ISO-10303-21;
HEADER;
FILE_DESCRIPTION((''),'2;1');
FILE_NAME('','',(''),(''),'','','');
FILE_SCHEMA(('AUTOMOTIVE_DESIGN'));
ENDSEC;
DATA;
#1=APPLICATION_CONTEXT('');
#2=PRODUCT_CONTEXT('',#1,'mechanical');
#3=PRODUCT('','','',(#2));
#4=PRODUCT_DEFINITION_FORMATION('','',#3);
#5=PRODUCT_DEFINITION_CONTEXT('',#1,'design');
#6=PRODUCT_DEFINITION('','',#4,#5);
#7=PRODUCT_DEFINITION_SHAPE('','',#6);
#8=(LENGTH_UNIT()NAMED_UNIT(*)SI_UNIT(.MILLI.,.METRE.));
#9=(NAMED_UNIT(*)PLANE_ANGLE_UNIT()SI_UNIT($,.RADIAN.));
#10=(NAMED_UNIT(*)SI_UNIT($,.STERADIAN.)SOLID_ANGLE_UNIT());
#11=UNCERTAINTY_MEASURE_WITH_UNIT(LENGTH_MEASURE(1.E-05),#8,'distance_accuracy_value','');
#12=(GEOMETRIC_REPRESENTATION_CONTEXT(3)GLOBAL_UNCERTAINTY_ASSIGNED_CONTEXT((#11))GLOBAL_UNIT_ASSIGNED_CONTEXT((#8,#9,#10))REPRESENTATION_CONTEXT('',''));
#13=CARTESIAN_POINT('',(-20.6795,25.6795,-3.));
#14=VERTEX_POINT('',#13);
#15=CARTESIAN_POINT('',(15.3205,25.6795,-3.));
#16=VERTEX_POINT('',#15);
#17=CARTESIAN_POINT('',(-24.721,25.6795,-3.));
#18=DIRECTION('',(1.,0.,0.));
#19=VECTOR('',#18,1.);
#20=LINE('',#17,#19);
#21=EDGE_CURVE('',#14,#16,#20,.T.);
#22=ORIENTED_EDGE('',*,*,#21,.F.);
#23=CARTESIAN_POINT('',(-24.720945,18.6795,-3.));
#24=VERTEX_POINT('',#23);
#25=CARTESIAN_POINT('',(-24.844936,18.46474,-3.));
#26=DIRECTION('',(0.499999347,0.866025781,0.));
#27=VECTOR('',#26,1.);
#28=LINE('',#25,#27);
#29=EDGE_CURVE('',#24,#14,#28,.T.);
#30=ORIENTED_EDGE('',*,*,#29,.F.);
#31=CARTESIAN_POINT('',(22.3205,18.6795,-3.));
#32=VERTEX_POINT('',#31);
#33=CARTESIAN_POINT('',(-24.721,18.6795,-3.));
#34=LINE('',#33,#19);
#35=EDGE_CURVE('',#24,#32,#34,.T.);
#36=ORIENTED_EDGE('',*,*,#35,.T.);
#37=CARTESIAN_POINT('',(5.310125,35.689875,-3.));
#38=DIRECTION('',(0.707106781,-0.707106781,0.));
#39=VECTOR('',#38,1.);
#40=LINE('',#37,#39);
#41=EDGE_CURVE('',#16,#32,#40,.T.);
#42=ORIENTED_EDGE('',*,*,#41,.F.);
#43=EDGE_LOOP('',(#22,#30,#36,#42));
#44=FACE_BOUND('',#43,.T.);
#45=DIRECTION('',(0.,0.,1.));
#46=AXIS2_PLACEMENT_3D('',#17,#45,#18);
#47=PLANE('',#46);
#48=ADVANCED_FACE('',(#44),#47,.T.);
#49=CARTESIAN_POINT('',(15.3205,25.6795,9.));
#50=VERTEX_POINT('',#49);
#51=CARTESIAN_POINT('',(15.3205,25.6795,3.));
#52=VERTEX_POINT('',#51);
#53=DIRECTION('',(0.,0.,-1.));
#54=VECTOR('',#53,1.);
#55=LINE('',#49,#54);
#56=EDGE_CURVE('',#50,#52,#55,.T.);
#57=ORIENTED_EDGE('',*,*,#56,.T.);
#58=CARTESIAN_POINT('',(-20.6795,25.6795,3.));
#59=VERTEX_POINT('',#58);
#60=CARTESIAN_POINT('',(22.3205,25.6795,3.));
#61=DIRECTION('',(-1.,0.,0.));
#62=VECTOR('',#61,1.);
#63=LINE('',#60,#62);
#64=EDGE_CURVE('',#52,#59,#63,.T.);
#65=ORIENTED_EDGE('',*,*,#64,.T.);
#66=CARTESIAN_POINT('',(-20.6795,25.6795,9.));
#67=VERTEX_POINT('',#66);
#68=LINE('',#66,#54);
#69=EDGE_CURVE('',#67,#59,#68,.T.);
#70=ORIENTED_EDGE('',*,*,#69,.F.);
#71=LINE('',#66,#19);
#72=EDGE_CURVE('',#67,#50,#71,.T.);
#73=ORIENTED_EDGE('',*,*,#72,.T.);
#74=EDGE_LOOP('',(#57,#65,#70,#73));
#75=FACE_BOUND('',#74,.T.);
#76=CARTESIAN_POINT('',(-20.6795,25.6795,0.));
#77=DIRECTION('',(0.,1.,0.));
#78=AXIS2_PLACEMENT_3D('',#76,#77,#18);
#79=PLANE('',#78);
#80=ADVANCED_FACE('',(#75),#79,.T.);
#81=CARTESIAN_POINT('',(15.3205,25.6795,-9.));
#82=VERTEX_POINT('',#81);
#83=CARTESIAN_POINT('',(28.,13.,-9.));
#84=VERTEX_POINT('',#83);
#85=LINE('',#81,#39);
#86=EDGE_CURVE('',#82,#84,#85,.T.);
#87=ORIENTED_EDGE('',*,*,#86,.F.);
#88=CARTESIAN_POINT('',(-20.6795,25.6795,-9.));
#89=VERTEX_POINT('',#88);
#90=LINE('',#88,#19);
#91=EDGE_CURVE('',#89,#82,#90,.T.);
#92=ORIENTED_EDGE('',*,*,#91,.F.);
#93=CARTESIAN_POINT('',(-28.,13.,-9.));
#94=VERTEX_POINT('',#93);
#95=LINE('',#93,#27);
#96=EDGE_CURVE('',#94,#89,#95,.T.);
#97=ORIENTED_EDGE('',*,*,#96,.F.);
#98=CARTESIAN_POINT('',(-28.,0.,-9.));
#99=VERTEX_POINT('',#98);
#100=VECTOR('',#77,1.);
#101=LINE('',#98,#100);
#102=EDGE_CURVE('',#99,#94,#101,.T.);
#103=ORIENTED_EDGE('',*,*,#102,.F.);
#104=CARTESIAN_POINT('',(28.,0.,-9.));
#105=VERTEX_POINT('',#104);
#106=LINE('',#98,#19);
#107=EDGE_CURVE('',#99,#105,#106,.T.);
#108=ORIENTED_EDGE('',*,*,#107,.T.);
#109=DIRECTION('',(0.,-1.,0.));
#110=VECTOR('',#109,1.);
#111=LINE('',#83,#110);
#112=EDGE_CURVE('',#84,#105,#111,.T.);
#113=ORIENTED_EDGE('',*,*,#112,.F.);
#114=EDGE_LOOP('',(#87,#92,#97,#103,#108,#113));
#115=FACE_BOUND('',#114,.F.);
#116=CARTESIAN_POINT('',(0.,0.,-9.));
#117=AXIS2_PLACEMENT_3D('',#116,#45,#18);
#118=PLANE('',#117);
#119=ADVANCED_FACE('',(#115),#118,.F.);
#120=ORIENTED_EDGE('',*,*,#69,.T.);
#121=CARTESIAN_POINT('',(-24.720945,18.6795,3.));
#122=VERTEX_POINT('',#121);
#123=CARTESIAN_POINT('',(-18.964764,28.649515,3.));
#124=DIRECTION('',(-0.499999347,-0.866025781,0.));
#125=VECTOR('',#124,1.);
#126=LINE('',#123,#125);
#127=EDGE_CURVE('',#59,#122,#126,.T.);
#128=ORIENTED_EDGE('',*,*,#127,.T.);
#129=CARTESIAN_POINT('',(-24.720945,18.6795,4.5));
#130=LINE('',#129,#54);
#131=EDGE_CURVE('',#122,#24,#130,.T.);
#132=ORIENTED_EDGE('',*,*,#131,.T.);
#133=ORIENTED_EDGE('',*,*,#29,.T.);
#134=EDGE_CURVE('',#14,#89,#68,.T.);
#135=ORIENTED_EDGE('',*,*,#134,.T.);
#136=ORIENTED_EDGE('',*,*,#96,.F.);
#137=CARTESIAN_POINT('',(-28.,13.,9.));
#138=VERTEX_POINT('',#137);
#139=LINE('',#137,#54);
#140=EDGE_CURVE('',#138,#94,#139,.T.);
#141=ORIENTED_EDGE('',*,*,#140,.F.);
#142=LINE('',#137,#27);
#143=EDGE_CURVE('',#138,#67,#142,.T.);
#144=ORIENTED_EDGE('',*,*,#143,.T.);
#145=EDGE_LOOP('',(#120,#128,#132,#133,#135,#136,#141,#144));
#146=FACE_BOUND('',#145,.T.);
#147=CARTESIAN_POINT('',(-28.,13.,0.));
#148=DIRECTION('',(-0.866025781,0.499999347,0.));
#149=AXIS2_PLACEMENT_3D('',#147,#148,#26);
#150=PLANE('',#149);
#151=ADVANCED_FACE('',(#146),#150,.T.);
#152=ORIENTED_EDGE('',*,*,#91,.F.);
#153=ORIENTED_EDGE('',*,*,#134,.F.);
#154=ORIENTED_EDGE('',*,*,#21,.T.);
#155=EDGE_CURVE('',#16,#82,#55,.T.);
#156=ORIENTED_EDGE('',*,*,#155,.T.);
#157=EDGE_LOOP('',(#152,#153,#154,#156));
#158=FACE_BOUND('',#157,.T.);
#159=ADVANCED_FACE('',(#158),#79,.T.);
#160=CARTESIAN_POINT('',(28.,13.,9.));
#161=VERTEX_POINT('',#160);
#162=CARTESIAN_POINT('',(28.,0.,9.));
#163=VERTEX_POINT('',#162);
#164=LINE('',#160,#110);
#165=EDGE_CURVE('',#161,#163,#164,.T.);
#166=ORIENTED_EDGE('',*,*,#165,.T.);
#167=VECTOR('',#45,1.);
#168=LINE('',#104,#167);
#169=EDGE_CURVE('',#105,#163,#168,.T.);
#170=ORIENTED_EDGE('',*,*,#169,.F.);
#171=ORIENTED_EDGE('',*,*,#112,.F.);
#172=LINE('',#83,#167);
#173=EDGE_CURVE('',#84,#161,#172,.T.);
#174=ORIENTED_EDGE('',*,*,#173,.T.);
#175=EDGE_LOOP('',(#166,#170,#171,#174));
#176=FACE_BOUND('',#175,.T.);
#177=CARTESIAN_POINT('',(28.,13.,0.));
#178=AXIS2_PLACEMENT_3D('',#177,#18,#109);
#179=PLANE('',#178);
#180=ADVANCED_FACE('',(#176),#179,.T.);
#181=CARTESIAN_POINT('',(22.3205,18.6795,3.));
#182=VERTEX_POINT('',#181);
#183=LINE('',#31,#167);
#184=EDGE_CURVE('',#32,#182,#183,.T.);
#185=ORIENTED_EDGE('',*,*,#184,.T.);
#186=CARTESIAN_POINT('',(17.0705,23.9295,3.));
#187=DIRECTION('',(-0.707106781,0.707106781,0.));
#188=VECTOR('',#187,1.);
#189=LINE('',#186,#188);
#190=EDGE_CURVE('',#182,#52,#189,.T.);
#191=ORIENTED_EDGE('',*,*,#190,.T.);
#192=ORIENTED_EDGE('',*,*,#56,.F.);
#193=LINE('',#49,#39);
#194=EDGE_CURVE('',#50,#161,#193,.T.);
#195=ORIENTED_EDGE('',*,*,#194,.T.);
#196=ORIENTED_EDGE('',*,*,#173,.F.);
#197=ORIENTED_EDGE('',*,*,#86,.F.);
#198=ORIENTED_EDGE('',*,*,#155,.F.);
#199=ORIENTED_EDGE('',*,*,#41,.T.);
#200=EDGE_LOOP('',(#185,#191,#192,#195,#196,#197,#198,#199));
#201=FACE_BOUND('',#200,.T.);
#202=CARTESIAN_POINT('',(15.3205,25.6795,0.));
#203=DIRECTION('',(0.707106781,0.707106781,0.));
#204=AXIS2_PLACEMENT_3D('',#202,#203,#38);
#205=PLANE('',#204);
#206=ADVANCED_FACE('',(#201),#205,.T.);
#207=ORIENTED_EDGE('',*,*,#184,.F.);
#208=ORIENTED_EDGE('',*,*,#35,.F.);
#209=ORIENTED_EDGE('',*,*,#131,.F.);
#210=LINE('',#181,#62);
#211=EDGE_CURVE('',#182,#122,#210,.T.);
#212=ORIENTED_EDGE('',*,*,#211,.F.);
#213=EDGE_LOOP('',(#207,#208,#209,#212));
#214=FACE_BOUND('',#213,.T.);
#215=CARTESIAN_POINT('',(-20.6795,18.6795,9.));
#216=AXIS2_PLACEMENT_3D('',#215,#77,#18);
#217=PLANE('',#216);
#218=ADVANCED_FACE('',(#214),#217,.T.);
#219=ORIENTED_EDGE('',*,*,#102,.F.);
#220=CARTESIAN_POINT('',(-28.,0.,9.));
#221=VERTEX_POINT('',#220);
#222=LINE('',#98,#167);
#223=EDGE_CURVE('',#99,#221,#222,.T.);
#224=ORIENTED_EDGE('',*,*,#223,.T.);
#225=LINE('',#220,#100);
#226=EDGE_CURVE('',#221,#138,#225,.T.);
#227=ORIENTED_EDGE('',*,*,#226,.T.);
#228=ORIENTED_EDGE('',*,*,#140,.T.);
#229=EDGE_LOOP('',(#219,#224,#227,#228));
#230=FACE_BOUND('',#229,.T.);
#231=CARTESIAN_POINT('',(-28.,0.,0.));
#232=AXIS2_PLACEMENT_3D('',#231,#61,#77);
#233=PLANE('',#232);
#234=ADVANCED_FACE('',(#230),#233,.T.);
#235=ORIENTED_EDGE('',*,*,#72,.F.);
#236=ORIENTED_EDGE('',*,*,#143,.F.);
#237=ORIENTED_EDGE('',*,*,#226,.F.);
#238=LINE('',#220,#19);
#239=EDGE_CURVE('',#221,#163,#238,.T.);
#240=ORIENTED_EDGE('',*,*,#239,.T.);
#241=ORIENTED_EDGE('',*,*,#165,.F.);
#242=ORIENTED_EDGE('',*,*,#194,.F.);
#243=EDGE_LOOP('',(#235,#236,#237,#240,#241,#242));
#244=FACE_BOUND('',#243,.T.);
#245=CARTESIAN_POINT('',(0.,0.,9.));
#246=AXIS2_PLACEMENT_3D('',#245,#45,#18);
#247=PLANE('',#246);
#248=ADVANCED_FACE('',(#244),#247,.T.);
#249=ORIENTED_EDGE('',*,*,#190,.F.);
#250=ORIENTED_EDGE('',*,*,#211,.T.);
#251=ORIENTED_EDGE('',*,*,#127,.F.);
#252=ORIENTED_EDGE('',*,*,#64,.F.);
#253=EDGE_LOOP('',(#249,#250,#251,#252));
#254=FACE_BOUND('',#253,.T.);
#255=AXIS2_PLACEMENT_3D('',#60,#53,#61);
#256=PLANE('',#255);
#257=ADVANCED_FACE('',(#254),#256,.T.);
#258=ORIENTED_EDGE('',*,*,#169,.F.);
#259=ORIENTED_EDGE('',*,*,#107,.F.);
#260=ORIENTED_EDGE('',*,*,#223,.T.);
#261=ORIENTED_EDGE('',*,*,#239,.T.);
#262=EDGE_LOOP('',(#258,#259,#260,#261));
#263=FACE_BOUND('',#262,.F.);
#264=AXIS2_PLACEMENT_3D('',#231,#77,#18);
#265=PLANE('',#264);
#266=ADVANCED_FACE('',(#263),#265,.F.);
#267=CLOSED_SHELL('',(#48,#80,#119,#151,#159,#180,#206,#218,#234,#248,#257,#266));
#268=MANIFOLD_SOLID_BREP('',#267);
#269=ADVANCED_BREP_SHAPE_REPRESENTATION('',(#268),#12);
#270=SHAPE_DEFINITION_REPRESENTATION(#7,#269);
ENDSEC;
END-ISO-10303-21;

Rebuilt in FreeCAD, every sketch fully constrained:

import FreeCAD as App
import Part
import Sketcher
from FreeCAD import Vector
Q = App.Units.Quantity

doc = App.newDocument("Part")
body = doc.addObject("PartDesign::Body", "Body")

# Sketch on XY plane
sketch1 = doc.addObject("Sketcher::SketchObject", "Sketch")
body.addObject(sketch1)
sketch1.AttachmentSupport = (doc.XY_Plane, [""])
sketch1.MapMode = "FlatFace"
sketch1.addGeometry([
    Part.LineSegment(Vector(-28, 13, 0), Vector(-28, 0, 0)),  # 0
    Part.LineSegment(Vector(-28, 0, 0), Vector(28, 0, 0)),  # 1
    Part.LineSegment(Vector(28, 0, 0), Vector(28, 13, 0)),  # 2
    Part.LineSegment(Vector(28, 13, 0), Vector(15.3205, 25.6795, 0)),  # 3
    Part.LineSegment(Vector(15.3205, 25.6795, 0), Vector(-20.6795, 25.6795, 0)),  # 4
    Part.LineSegment(Vector(-20.6795, 25.6795, 0), Vector(-28, 13, 0)),  # 5
], False)
sketch1.addConstraint([
    Sketcher.Constraint("Coincident", 0, 2, 1, 1),
    Sketcher.Constraint("Coincident", 1, 2, 2, 1),
    Sketcher.Constraint("Coincident", 2, 2, 3, 1),
    Sketcher.Constraint("Coincident", 3, 2, 4, 1),
    Sketcher.Constraint("Coincident", 4, 2, 5, 1),
    Sketcher.Constraint("Coincident", 5, 2, 0, 1),
    Sketcher.Constraint("Vertical", 0),
    Sketcher.Constraint("Horizontal", 1),
    Sketcher.Constraint("Vertical", 2),
    Sketcher.Constraint("Horizontal", 4),
    Sketcher.Constraint("Symmetric", 0, 2, 1, 2, -1, 1),
    Sketcher.Constraint("Horizontal", 2, 2, 5, 2),
    Sketcher.Constraint("DistanceX", 4, 2, 4, 1, 36.0),
    Sketcher.Constraint("DistanceY", 0, 2, 0, 1, 13.0),
    Sketcher.Constraint("Angle", 3, Q("135 deg")),
    Sketcher.Constraint("DistanceX", 0, 2, -1, 1, 28.0),
    Sketcher.Constraint("Angle", 5, Q("-120 deg")),
])
pad1 = doc.addObject("PartDesign::Pad", "Pad")
body.addObject(pad1)
pad1.Profile = sketch1
pad1.Length = 18
pad1.Midplane = True

# Sketch on XZ plane
sketch2 = doc.addObject("Sketcher::SketchObject", "Sketch001")
body.addObject(sketch2)
sketch2.AttachmentSupport = (doc.XZ_Plane, [""])
sketch2.MapMode = "FlatFace"
sketch2.AttachmentOffset = App.Placement(Vector(0, 0, -25.6795), App.Rotation())
sketch2.addGeometry([
    Part.LineSegment(Vector(22.3205, -3, 0), Vector(-24.721, -3, 0)),
    Part.LineSegment(Vector(-24.721, -3, 0), Vector(-24.721, 3, 0)),
    Part.LineSegment(Vector(-24.721, 3, 0), Vector(22.3205, 3, 0)),
    Part.LineSegment(Vector(22.3205, 3, 0), Vector(22.3205, -3, 0)),
], False)
sketch2.addConstraint([
    Sketcher.Constraint("Coincident", 0, 2, 1, 1),
    Sketcher.Constraint("Coincident", 1, 2, 2, 1),
    Sketcher.Constraint("Coincident", 2, 2, 3, 1),
    Sketcher.Constraint("Coincident", 3, 2, 0, 1),
    Sketcher.Constraint("Horizontal", 0),
    Sketcher.Constraint("Vertical", 1),
    Sketcher.Constraint("Horizontal", 2),
    Sketcher.Constraint("Vertical", 3),
    Sketcher.Constraint("DistanceY", 1, 1, 1, 2, 6.0),
    Sketcher.Constraint("DistanceY", 0, 2, -1, 1, 3.0),
    Sketcher.Constraint("DistanceX", 0, 2, 0, 1, 47.0415),
    Sketcher.Constraint("DistanceX", 0, 2, -1, 1, 24.721),
])
pocket1 = doc.addObject("PartDesign::Pocket", "Pocket")
body.addObject(pocket1)
pocket1.Profile = sketch2
pocket1.Length = 7
pocket1.Reversed = True

doc.recompute()
